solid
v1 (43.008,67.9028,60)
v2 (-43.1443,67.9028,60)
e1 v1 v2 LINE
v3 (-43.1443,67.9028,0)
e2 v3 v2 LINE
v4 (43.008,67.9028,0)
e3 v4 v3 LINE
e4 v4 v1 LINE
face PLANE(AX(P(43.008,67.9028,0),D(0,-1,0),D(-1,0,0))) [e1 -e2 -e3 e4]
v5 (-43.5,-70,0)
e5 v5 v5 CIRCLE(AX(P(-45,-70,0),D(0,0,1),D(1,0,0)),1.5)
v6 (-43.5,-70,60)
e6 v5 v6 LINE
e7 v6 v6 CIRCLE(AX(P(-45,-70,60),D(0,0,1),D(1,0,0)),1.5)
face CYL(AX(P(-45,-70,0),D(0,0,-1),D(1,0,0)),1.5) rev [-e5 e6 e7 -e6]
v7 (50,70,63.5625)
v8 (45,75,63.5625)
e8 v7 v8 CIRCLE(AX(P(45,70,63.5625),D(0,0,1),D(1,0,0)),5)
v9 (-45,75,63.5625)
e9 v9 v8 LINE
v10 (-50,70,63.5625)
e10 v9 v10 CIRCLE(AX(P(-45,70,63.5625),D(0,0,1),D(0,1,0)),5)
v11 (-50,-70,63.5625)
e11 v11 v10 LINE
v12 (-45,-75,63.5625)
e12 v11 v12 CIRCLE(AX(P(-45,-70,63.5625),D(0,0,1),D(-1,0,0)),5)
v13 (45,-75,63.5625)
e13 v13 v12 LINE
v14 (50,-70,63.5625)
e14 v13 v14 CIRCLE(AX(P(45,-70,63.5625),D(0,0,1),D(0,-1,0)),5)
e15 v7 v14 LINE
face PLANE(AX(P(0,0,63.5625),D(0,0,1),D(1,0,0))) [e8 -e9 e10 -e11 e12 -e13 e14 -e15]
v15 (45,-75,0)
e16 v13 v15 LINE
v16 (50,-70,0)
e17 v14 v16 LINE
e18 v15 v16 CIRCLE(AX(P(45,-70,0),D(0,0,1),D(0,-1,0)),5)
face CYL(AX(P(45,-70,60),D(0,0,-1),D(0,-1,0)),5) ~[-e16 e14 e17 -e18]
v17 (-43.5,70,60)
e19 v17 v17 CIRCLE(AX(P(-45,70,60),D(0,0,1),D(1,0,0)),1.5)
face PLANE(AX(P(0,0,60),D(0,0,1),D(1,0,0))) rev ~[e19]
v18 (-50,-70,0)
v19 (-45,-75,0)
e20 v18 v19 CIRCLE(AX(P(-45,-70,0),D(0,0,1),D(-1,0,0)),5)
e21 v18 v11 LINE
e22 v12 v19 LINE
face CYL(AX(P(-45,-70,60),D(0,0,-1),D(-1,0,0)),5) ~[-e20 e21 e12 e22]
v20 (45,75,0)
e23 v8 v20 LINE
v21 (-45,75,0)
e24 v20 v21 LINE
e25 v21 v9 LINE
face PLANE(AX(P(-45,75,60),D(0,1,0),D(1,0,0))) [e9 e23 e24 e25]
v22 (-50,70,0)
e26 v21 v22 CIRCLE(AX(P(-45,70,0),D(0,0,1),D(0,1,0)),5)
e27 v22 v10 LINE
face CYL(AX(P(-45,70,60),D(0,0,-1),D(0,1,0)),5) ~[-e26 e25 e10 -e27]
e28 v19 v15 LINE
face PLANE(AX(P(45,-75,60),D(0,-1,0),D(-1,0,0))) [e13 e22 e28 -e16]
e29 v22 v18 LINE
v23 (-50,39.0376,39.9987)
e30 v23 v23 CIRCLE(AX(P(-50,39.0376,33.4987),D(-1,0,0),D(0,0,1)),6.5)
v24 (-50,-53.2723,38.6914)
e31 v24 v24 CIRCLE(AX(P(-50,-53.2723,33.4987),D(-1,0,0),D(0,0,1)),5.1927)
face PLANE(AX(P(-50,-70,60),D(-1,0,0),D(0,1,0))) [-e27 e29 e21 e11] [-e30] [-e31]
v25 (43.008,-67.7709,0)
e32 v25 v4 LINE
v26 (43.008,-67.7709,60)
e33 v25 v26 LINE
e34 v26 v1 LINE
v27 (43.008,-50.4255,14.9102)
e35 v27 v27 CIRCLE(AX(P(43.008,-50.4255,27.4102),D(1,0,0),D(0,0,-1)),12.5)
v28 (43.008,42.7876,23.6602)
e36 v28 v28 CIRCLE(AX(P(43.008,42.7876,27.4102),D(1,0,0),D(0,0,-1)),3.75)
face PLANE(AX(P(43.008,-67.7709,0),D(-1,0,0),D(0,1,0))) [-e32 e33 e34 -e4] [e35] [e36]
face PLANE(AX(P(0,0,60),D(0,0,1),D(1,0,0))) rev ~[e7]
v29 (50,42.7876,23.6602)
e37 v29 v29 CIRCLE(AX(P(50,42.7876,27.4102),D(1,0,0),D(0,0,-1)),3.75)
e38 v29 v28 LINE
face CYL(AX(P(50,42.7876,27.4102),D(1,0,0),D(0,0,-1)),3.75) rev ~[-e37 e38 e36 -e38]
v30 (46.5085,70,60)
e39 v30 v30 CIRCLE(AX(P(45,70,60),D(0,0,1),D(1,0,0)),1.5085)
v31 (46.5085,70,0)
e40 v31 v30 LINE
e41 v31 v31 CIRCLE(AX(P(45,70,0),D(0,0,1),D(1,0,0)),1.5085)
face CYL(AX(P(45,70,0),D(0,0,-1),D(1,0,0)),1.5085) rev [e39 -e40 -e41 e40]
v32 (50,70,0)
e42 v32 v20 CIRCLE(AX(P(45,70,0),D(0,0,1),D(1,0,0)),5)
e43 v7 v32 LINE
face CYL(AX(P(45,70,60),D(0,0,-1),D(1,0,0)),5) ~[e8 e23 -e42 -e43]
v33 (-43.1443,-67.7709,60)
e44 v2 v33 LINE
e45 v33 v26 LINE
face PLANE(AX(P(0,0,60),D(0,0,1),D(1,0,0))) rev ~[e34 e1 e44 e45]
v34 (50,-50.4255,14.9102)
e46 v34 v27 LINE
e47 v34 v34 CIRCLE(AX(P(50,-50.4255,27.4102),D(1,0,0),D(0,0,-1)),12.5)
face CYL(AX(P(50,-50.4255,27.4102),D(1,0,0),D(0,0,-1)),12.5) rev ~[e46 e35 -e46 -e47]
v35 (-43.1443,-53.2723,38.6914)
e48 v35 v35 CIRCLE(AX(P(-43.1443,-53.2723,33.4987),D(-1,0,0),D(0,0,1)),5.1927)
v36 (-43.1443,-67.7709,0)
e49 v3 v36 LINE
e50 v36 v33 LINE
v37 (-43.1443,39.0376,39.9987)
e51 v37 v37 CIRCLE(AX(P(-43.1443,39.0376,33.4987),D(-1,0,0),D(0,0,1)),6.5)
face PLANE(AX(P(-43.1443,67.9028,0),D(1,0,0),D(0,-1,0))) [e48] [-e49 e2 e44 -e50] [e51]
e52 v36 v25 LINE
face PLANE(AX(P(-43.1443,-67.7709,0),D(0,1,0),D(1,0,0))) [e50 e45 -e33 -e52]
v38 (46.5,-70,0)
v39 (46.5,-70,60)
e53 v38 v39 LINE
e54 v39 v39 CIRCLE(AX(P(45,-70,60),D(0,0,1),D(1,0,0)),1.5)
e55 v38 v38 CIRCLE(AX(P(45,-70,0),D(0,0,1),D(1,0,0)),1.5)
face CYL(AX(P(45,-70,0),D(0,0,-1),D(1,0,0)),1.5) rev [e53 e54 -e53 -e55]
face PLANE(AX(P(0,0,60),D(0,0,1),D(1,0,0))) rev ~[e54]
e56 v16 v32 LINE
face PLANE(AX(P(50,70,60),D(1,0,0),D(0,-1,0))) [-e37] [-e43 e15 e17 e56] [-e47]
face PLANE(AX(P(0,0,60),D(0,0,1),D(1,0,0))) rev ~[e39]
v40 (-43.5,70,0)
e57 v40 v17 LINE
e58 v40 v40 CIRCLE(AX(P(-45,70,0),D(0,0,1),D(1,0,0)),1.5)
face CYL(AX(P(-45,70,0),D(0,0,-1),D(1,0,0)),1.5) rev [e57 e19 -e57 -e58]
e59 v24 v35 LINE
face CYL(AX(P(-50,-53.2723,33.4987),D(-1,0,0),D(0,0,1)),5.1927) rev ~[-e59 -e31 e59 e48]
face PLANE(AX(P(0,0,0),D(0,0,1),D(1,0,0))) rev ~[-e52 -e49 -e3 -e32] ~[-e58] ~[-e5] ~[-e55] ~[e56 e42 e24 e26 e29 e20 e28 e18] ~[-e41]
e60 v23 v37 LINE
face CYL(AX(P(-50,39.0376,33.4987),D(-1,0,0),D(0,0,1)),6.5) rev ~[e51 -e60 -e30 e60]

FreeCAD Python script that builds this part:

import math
import FreeCAD as App
import Part
import Sketcher

V = App.Vector


def add_polygon(sketch, points):
    """Adds a closed chain of lines whose ends are joined by coincident constraints."""
    first, n = sketch.GeometryCount, len(points)
    for a, b in zip(points, points[1:] + points[:1]):
        sketch.addGeometry(Part.LineSegment(App.Vector(*a, 0), App.Vector(*b, 0)), False)
    for i in range(n):
        sketch.addConstraint(Sketcher.Constraint("Coincident", first + i, 2, first + (i + 1) % n, 1))

doc = App.newDocument("Part")
body = doc.addObject("PartDesign::Body", "Body")

sketch1 = doc.addObject("Sketcher::SketchObject", "Sketch")
body.addObject(sketch1)
sketch1.AttachmentSupport = (doc.XY_Plane, [""])
sketch1.MapMode = "FlatFace"
sketch1.addGeometry(Part.ArcOfCircle(Part.Circle(V(45, 70, 0), V(0, 0, 1), 5), math.radians(0), math.radians(90)), False)
sketch1.addGeometry(Part.LineSegment(V(45, 75, 0), V(-45, 75, 0)), False)
sketch1.addGeometry(Part.ArcOfCircle(Part.Circle(V(-45, 70, 0), V(0, 0, 1), 5), math.radians(90), math.radians(180)), False)
sketch1.addGeometry(Part.LineSegment(V(-50, 70, 0), V(-50, -70, 0)), False)
sketch1.addGeometry(Part.ArcOfCircle(Part.Circle(V(-45, -70, 0), V(0, 0, 1), 5), math.radians(180), math.radians(270)), False)
sketch1.addGeometry(Part.LineSegment(V(-45, -75, 0), V(45, -75, 0)), False)
sketch1.addGeometry(Part.ArcOfCircle(Part.Circle(V(45, -70, 0), V(0, 0, 1), 5), math.radians(-90), math.radians(0)), False)
sketch1.addGeometry(Part.LineSegment(V(50, -70, 0), V(50, 70, 0)), False)
sketch1.addGeometry(Part.Circle(V(-45, -70, 0), V(0, 0, 1), 1.5), False)
sketch1.addGeometry(Part.Circle(V(45, -70, 0), V(0, 0, 1), 1.5), False)
add_polygon(sketch1, [(-43.1, 67.9), (43, 67.9), (43, -67.8), (-43.1, -67.8)])
sketch1.addGeometry(Part.Circle(V(-45, 70, 0), V(0, 0, 1), 1.5), False)
sketch1.addGeometry(Part.Circle(V(45, 70, 0), V(0, 0, 1), 1.5), False)
sketch1.addConstraint([
    Sketcher.Constraint("Tangent", 0, 2, 1, 1),
    Sketcher.Constraint("Tangent", 1, 2, 2, 1),
    Sketcher.Constraint("Tangent", 2, 2, 3, 1),
    Sketcher.Constraint("Tangent", 3, 2, 4, 1),
    Sketcher.Constraint("Tangent", 4, 2, 5, 1),
    Sketcher.Constraint("Tangent", 5, 2, 6, 1),
    Sketcher.Constraint("Tangent", 6, 2, 7, 1),
    Sketcher.Constraint("Tangent", 7, 2, 0, 1),
    Sketcher.Constraint("Horizontal", 1),
    Sketcher.Constraint("Vertical", 3),
    Sketcher.Constraint("Horizontal", 5),
    Sketcher.Constraint("Vertical", 7),
    Sketcher.Constraint("Horizontal", 10),
    Sketcher.Constraint("Vertical", 11),
    Sketcher.Constraint("Horizontal", 12),
    Sketcher.Constraint("Vertical", 13),
    Sketcher.Constraint("Coincident", 8, 3, 4, 3),
    Sketcher.Constraint("Coincident", 9, 3, 6, 3),
    Sketcher.Constraint("Coincident", 14, 3, 2, 3),
    Sketcher.Constraint("Coincident", 15, 3, 0, 3),
    Sketcher.Constraint("Equal", 0, 2),
    Sketcher.Constraint("Equal", 2, 4),
    Sketcher.Constraint("Equal", 4, 6),
    Sketcher.Constraint("Equal", 8, 9),
    Sketcher.Constraint("Equal", 9, 14),
    Sketcher.Constraint("Symmetric", 0, 3, 4, 3, -1, 1),
    Sketcher.Constraint("Diameter", 8, 3.0),
    Sketcher.Constraint("Radius", 0, 5.0),
    Sketcher.Constraint("DistanceX", 1, 2, 1, 1, 90.0),
    Sketcher.Constraint("DistanceY", 3, 2, 3, 1, 140.0),
    Sketcher.Constraint("Diameter", 15, 3.017),
    Sketcher.Constraint("DistanceX", 10, 1, 10, 2, 86.1523),
    Sketcher.Constraint("DistanceY", 11, 2, 11, 1, 135.6737),
    Sketcher.Constraint("DistanceX", -1, 1, 10, 2, 43.008),
    Sketcher.Constraint("DistanceY", 11, 2, -1, 1, 67.771),
])
pad1 = doc.addObject("PartDesign::Pad", "Pad")
body.addObject(pad1)
pad1.Profile = sketch1
pad1.Length = 60

sketch2 = doc.addObject("Sketcher::SketchObject", "Sketch001")
body.addObject(sketch2)
sketch2.AttachmentSupport = (doc.YZ_Plane, [""])
sketch2.MapMode = "FlatFace"
sketch2.AttachmentOffset = App.Placement(V(0, 0, 50), App.Rotation())
sketch2.addGeometry([
    Part.Circle(V(-50.4, 27.4, 0), V(0, 0, 1), 12.5),
    Part.Circle(V(42.8, 27.4, 0), V(0, 0, 1), 3.8),
], False)
sketch2.addConstraint([
    Sketcher.Constraint("Horizontal", 0, 3, 1, 3),
    Sketcher.Constraint("Diameter", 0, 25.0),
    Sketcher.Constraint("Diameter", 1, 7.5),
    Sketcher.Constraint("DistanceX", 0, 3, 1, 3, 93.213),
    Sketcher.Constraint("DistanceX", 0, 3, -1, 1, 50.4255),
    Sketcher.Constraint("DistanceY", -1, 1, 0, 3, 27.4102),
])
pocket1 = doc.addObject("PartDesign::Pocket", "Pocket")
body.addObject(pocket1)
pocket1.Profile = sketch2
pocket1.Length = 6.992

sketch3 = doc.addObject("Sketcher::SketchObject", "Sketch002")
body.addObject(sketch3)
sketch3.AttachmentSupport = (doc.XY_Plane, [""])
sketch3.MapMode = "FlatFace"
sketch3.AttachmentOffset = App.Placement(V(0, 0, 60), App.Rotation())
sketch3.addGeometry([
    Part.LineSegment(V(45, 75, 0), V(-45, 75, 0)),
    Part.ArcOfCircle(Part.Circle(V(-45, 70, 0), V(0, 0, 1), 5), math.radians(90), math.radians(180)),
    Part.LineSegment(V(-50, 70, 0), V(-50, -70, 0)),
    Part.ArcOfCircle(Part.Circle(V(-45, -70, 0), V(0, 0, 1), 5), math.radians(180), math.radians(270)),
    Part.LineSegment(V(-45, -75, 0), V(45, -75, 0)),
    Part.ArcOfCircle(Part.Circle(V(45, -70, 0), V(0, 0, 1), 5), math.radians(-90), math.radians(0)),
    Part.LineSegment(V(50, -70, 0), V(50, 70, 0)),
    Part.ArcOfCircle(Part.Circle(V(45, 70, 0), V(0, 0, 1), 5), math.radians(0), math.radians(90)),
], False)
sketch3.addConstraint([
    Sketcher.Constraint("Tangent", 0, 2, 1, 1),
    Sketcher.Constraint("Tangent", 1, 2, 2, 1),
    Sketcher.Constraint("Tangent", 2, 2, 3, 1),
    Sketcher.Constraint("Tangent", 3, 2, 4, 1),
    Sketcher.Constraint("Tangent", 4, 2, 5, 1),
    Sketcher.Constraint("Tangent", 5, 2, 6, 1),
    Sketcher.Constraint("Tangent", 6, 2, 7, 1),
    Sketcher.Constraint("Tangent", 7, 2, 0, 1),
    Sketcher.Constraint("Horizontal", 0),
    Sketcher.Constraint("Vertical", 2),
    Sketcher.Constraint("Horizontal", 4),
    Sketcher.Constraint("Vertical", 6),
    Sketcher.Constraint("Equal", 1, 3),
    Sketcher.Constraint("Equal", 3, 5),
    Sketcher.Constraint("Equal", 5, 7),
    Sketcher.Constraint("Symmetric", 1, 3, 5, 3, -1, 1),
    Sketcher.Constraint("Radius", 1, 5.0),
    Sketcher.Constraint("DistanceX", 0, 2, 0, 1, 90.0),
    Sketcher.Constraint("DistanceY", 2, 2, 2, 1, 140.0),
])
pad2 = doc.addObject("PartDesign::Pad", "Pad001")
body.addObject(pad2)
pad2.Profile = sketch3
pad2.Length = 3.5625

sketch4 = doc.addObject("Sketcher::SketchObject", "Sketch003")
body.addObject(sketch4)
sketch4.AttachmentSupport = (doc.YZ_Plane, [""])
sketch4.MapMode = "FlatFace"
sketch4.AttachmentOffset = App.Placement(V(0, 0, -50), App.Rotation())
sketch4.addGeometry([
    Part.Circle(V(-53, 33, 0), V(0, 0, 1), 5),
    Part.Circle(V(39, 33, 0), V(0, 0, 1), 6),
], False)
sketch4.addConstraint([
    Sketcher.Constraint("Horizontal", 0, 3, 1, 3),
    Sketcher.Constraint("Diameter", 1, 13.0),
    Sketcher.Constraint("Diameter", 0, 10.3854),
    Sketcher.Constraint("DistanceX", 0, 3, 1, 3, 92.31),
    Sketcher.Constraint("DistanceX", 0, 3, -1, 1, 53.2723),
    Sketcher.Constraint("DistanceY", -1, 1, 0, 3, 33.4987),
])
pocket2 = doc.addObject("PartDesign::Pocket", "Pocket001")
body.addObject(pocket2)
pocket2.Profile = sketch4
pocket2.Length = 6.8557
pocket2.Reversed = True

doc.recompute()
